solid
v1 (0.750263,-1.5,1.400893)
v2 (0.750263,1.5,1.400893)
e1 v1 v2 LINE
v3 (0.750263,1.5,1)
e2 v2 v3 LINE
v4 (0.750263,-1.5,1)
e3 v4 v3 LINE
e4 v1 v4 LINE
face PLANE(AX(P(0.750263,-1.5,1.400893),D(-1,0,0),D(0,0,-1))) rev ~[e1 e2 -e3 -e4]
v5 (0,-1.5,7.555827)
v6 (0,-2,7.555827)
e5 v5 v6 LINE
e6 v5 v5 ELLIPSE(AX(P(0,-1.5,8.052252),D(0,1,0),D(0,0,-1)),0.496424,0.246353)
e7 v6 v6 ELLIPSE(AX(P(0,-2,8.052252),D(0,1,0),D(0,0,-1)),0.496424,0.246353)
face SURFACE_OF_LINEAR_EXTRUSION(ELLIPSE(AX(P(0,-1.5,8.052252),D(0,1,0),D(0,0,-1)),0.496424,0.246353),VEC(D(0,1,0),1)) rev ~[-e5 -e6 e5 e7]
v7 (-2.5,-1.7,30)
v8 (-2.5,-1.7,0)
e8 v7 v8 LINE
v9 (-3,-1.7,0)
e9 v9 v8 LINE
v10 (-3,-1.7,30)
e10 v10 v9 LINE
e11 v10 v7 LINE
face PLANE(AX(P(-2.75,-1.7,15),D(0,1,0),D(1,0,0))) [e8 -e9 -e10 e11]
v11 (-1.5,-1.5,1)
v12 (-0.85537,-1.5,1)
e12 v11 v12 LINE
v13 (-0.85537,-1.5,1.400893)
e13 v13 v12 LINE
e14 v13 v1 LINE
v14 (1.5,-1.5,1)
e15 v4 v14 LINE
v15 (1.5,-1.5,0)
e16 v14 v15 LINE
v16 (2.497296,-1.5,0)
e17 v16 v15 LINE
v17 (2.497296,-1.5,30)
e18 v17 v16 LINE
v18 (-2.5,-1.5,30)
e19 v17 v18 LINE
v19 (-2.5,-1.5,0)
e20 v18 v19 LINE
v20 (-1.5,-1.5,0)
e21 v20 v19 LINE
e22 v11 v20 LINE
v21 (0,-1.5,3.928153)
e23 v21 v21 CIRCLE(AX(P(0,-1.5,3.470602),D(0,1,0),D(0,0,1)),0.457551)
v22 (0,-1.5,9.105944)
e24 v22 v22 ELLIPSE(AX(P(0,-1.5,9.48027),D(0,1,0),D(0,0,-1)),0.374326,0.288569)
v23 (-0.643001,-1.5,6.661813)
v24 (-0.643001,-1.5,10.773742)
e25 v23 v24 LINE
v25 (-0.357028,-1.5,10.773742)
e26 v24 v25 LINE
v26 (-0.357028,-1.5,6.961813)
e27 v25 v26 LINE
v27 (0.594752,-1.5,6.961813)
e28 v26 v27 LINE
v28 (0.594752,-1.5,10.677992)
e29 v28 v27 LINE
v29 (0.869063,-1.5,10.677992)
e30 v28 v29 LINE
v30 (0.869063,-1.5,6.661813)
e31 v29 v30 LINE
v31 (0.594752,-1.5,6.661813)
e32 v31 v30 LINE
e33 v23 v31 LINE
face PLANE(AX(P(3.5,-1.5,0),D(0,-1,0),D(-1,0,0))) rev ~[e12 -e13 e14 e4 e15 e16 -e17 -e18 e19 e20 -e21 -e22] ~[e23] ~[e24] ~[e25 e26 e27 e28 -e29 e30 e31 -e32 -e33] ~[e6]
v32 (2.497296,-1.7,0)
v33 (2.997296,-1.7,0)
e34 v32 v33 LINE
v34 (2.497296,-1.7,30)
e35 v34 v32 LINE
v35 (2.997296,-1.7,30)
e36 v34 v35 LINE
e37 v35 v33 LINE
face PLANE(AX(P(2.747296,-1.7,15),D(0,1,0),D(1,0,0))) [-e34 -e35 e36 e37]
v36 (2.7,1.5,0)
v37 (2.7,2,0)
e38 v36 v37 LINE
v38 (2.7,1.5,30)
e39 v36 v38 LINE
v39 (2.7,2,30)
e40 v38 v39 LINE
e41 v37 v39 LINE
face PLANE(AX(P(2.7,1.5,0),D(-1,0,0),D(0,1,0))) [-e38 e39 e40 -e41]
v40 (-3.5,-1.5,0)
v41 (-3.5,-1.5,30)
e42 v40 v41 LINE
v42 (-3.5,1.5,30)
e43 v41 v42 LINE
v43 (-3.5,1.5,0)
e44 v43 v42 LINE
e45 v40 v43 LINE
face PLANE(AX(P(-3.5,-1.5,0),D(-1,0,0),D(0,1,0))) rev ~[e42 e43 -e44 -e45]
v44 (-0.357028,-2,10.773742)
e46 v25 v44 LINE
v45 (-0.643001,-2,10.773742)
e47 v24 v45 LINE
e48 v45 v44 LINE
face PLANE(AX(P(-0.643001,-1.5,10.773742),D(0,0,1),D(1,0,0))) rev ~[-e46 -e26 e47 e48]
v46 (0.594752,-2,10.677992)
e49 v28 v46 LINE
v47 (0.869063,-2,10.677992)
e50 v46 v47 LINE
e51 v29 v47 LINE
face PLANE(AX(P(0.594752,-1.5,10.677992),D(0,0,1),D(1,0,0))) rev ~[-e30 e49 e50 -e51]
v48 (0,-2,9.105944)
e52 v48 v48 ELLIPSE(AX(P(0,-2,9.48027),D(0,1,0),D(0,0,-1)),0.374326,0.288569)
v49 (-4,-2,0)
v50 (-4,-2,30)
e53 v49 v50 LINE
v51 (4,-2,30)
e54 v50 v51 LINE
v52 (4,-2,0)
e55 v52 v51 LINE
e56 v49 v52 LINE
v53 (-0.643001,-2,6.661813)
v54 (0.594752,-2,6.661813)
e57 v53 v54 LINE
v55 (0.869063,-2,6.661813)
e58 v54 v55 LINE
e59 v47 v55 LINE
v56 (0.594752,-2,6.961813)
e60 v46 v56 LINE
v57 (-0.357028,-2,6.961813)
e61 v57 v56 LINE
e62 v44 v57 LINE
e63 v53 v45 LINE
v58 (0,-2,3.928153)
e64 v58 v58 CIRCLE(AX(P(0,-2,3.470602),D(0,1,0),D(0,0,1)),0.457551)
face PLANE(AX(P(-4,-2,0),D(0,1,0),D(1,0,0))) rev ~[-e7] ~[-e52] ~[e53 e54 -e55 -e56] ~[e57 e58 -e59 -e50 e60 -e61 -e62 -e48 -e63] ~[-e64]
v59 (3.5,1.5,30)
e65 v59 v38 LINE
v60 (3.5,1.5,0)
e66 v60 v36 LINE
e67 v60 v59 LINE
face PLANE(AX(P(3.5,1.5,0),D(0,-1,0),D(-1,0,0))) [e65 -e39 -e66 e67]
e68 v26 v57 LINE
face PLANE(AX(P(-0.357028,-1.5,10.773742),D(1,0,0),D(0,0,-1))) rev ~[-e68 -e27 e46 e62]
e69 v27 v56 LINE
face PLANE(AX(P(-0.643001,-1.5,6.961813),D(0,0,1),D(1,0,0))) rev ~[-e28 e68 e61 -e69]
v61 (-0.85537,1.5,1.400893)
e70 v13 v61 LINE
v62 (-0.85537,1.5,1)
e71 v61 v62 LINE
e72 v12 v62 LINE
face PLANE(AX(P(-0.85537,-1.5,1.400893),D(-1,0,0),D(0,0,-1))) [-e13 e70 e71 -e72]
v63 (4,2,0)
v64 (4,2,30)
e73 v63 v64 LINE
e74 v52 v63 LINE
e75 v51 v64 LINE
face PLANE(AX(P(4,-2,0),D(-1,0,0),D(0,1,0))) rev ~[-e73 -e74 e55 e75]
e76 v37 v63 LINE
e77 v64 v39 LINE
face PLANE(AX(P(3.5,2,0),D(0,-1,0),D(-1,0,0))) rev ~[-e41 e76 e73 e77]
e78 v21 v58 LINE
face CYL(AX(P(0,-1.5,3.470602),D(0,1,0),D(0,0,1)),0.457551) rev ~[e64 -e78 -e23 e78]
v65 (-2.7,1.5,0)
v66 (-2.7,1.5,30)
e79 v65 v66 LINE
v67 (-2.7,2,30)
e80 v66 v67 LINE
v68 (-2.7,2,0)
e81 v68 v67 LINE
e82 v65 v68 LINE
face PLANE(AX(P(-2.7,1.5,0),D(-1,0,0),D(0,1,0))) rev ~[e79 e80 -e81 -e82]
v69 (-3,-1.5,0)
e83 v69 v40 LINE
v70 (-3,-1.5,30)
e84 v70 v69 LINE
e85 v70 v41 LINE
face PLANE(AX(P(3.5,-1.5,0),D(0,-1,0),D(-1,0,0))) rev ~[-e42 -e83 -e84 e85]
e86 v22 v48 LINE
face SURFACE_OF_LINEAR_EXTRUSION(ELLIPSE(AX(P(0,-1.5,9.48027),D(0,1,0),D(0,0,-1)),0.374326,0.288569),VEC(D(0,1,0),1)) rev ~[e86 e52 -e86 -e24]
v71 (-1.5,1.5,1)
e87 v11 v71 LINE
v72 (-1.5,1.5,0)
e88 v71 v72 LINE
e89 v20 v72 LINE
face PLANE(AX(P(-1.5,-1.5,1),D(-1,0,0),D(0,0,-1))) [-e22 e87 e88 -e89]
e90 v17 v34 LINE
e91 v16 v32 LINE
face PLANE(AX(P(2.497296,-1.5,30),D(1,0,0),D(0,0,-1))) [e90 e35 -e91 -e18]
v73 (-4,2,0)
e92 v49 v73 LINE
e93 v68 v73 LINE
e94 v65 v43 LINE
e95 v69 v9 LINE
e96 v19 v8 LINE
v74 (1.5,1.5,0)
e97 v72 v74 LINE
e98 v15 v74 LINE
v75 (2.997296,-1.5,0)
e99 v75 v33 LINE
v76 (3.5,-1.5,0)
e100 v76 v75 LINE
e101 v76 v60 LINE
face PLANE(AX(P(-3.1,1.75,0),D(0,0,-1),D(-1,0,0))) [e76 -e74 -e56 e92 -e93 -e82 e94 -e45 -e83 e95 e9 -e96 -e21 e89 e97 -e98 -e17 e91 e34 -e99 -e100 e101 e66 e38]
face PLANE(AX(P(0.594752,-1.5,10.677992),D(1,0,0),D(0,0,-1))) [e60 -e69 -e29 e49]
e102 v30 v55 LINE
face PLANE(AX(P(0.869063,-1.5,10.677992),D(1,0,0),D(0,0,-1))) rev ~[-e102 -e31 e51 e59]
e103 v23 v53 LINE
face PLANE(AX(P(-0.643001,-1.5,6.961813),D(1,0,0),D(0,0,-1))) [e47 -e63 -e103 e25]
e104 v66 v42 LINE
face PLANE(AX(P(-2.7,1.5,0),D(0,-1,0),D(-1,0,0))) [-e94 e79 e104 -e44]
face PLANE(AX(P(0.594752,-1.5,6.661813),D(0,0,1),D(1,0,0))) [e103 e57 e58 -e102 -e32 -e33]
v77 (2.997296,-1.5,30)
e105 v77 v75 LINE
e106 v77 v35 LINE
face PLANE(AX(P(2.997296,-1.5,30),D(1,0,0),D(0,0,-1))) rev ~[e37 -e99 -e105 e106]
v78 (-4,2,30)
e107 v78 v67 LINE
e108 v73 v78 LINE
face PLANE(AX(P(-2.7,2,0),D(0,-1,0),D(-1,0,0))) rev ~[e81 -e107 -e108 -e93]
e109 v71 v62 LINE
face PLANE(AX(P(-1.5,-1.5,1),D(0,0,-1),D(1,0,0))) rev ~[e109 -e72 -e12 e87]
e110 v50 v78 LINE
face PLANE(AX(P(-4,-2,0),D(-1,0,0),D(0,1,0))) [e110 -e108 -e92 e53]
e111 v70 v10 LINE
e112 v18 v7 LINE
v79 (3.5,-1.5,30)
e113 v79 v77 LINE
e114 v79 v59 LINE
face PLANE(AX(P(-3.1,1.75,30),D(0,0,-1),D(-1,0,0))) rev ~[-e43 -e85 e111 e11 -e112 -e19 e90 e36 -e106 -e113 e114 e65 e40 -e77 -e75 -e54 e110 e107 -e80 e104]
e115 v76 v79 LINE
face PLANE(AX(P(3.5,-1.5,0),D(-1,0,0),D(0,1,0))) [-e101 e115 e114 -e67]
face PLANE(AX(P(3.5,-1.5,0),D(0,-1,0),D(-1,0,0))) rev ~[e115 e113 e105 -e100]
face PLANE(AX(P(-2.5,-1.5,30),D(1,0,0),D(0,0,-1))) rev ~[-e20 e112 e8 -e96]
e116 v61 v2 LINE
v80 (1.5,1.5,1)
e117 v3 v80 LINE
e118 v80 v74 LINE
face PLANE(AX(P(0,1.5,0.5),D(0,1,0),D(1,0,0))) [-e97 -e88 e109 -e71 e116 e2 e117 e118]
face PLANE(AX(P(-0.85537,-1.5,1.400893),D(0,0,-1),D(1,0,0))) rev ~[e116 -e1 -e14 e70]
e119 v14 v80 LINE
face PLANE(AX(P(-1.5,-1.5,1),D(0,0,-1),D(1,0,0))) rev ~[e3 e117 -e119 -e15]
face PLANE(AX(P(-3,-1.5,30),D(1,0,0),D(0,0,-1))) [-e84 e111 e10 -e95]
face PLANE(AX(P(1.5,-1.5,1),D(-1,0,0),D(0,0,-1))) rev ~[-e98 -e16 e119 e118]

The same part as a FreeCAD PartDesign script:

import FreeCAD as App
import Part
import Sketcher
from FreeCAD import Vector
Q = App.Units.Quantity


def add_polygon(sketch, points):
    """Adds a closed chain of lines whose ends are joined by coincident constraints."""
    first, n = sketch.GeometryCount, len(points)
    for a, b in zip(points, points[1:] + points[:1]):
        sketch.addGeometry(Part.LineSegment(App.Vector(*a, 0), App.Vector(*b, 0)), False)
    for i in range(n):
        sketch.addConstraint(Sketcher.Constraint("Coincident", first + i, 2, first + (i + 1) % n, 1))

doc = App.newDocument("Part")
params = doc.addObject("Spreadsheet::Sheet", "Params")
for row, (alias, value) in enumerate([
    ("sketch1_width", "8 mm"),
    ("sketch1_height", "4 mm"),
    ("pad1_length", "30 mm"),
    ("sketch2_width", "7 mm"),
    ("sketch2_height", "3.5 mm"),
    ("pocket1_length", "30 mm"),
    ("sketch3_width", "3 mm"),
    ("sketch3_height", "1 mm"),
    ("pad2_length", "3 mm"),
    ("pad3_length", "3 mm"),
    ("sketch5_height", "30 mm"),
    ("sketch5_width", "0.5 mm"),
    ("pocket2_length", "0.2 mm"),
    ("sketch6_height", "30 mm"),
    ("sketch6_width", "0.5 mm"),
    ("pocket3_length", "0.2 mm"),
    ("pocket4_length", "0.5 mm"),
    ("pocket5_length", "0.5 mm"),
    ("pocket6_length", "0.5 mm"),
    ("pocket7_length", "0.5 mm"),
    ("sketch11_height", "0.3 mm"),
    ("pocket8_length", "0.5 mm"),
    ("pocket9_length", "0.5 mm"),
    ("sketch13_width", "0.8 mm"),
    ("sketch13_height", "0.5 mm"),
    ("pad4_length", "30 mm"),
    ("sketch14_width", "0.8 mm"),
    ("sketch14_height", "0.5 mm"),
    ("pad5_length", "30 mm"),
], start=1):
    params.set(f"A{row}", alias)
    params.set(f"B{row}", "=" + value)
    params.setAlias(f"B{row}", alias)

body = doc.addObject("PartDesign::Body", "Body")

# Sketch on XY plane
sketch1 = body.newObject("Sketcher::SketchObject", "Sketch")
sketch1.AttachmentSupport = (doc.getObject("XY_Plane"), [""])
sketch1.MapMode = "FlatFace"
add_polygon(sketch1, [(-4, 2), (-4, -2), (4, -2), (4, 2)])  # lines 0-3
sketch1.addConstraint([
    Sketcher.Constraint("Vertical", 0),
    Sketcher.Constraint("Horizontal", 1),
    Sketcher.Constraint("Vertical", 2),
    Sketcher.Constraint("Horizontal", 3),
    Sketcher.Constraint("Symmetric", 0, 2, 2, 2, -1, 1),
    Sketcher.Constraint("DistanceX", 1, 1, 1, 2, Q("8 mm")),
    Sketcher.Constraint("DistanceY", 0, 2, 0, 1, Q("4 mm")),
])
sketch1.setExpression("Constraints[9]", "Params.sketch1_width")
sketch1.setExpression("Constraints[10]", "Params.sketch1_height")
pad1 = body.newObject("PartDesign::Pad", "Pad")
pad1.Profile = sketch1
pad1.setExpression("Length", "Params.pad1_length")

# Sketch on XY plane
sketch2 = body.newObject("Sketcher::SketchObject", "Sketch001")
sketch2.AttachmentSupport = (doc.getObject("XY_Plane"), [""])
sketch2.MapMode = "FlatFace"
add_polygon(sketch2, [(3.5, 2), (3.5, -1.5), (-3.5, -1.5), (-3.5, 2)])  # lines 0-3
sketch2.addConstraint([
    Sketcher.Constraint("Vertical", 0),
    Sketcher.Constraint("Horizontal", 1),
    Sketcher.Constraint("Vertical", 2),
    Sketcher.Constraint("Horizontal", 3),
    Sketcher.Constraint("DistanceX", 1, 2, 1, 1, Q("7 mm")),
    Sketcher.Constraint("DistanceY", 0, 2, 0, 1, Q("3.5 mm")),
    Sketcher.Constraint("DistanceY", -1, 1, 2, 2, Q("2 mm")),
    Sketcher.Constraint("DistanceX", -1, 1, 0, 2, Q("3.5 mm")),
])
sketch2.setExpression("Constraints[8]", "Params.sketch2_width")
sketch2.setExpression("Constraints[9]", "Params.sketch2_height")
pocket1 = body.newObject("PartDesign::Pocket", "Pocket")
pocket1.Profile = sketch2
pocket1.setExpression("Length", "Params.pocket1_length")
pocket1.Reversed = True

# Sketch on XZ plane
sketch3 = body.newObject("Sketcher::SketchObject", "Sketch002")
sketch3.AttachmentSupport = (doc.getObject("XZ_Plane"), [""])
sketch3.MapMode = "FlatFace"
sketch3.AttachmentOffset = App.Placement(Vector(0, 0, 1.5), App.Rotation())
add_polygon(sketch3, [(-1.5, 0), (-1.5, 1), (1.5, 1), (1.5, 0)])  # lines 0-3
sketch3.addConstraint([
    Sketcher.Constraint("Vertical", 0),
    Sketcher.Constraint("Horizontal", 1),
    Sketcher.Constraint("Vertical", 2),
    Sketcher.Constraint("Horizontal", 3),
    Sketcher.Constraint("Symmetric", 2, 2, 3, 2, -1, 1),
    Sketcher.Constraint("DistanceX", 1, 1, 1, 2, Q("3 mm")),
    Sketcher.Constraint("DistanceY", 0, 1, 0, 2, Q("1 mm")),
])
sketch3.setExpression("Constraints[9]", "Params.sketch3_width")
sketch3.setExpression("Constraints[10]", "Params.sketch3_height")
pad2 = body.newObject("PartDesign::Pad", "Pad001")
pad2.Profile = sketch3
pad2.setExpression("Length", "Params.pad2_length")
pad2.Reversed = True

# Sketch on XZ plane
sketch4 = body.newObject("Sketcher::SketchObject", "Sketch003")
sketch4.AttachmentSupport = (doc.getObject("XZ_Plane"), [""])
sketch4.MapMode = "FlatFace"
sketch4.AttachmentOffset = App.Placement(Vector(0, 0, 1.5), App.Rotation())
add_polygon(sketch4, [(-0.85537, 1), (-0.85537, 1.400893), (0.750263, 1.400893), (0.750263, 1)])  # lines 0-3
sketch4.addConstraint([
    Sketcher.Constraint("Vertical", 0),
    Sketcher.Constraint("Horizontal", 1),
    Sketcher.Constraint("Vertical", 2),
    Sketcher.Constraint("Horizontal", 3),
    Sketcher.Constraint("DistanceY", -1, 1, 2, 2, Q("1 mm")),
    Sketcher.Constraint("DistanceX", 1, 1, 1, 2, Q("1.605633 mm")),
    Sketcher.Constraint("DistanceY", 0, 1, 0, 2, Q("0.400893 mm")),
    Sketcher.Constraint("DistanceX", 0, 2, -1, 1, Q("0.85537 mm")),
])
pad3 = body.newObject("PartDesign::Pad", "Pad002")
pad3.Profile = sketch4
pad3.setExpression("Length", "Params.pad3_length")
pad3.Reversed = True

# Sketch on XZ plane
sketch5 = body.newObject("Sketcher::SketchObject", "Sketch004")
sketch5.AttachmentSupport = (doc.getObject("XZ_Plane"), [""])
sketch5.MapMode = "FlatFace"
sketch5.AttachmentOffset = App.Placement(Vector(0, 0, 1.5), App.Rotation())
add_polygon(sketch5, [(-3, 0), (-3, 30), (-2.5, 30), (-2.5, 0)])  # lines 0-3
sketch5.addConstraint([
    Sketcher.Constraint("Vertical", 0),
    Sketcher.Constraint("Horizontal", 1),
    Sketcher.Constraint("Vertical", 2),
    Sketcher.Constraint("Horizontal", 3),
    Sketcher.Constraint("PointOnObject", 2, 2, -1),
    Sketcher.Constraint("DistanceY", 0, 1, 0, 2, Q("30 mm")),
    Sketcher.Constraint("DistanceX", 1, 1, 1, 2, Q("0.5 mm")),
    Sketcher.Constraint("DistanceX", 0, 2, -1, 1, Q("3 mm")),
])
sketch5.setExpression("Constraints[9]", "Params.sketch5_height")
sketch5.setExpression("Constraints[10]", "Params.sketch5_width")
pocket2 = body.newObject("PartDesign::Pocket", "Pocket001")
pocket2.Profile = sketch5
pocket2.setExpression("Length", "Params.pocket2_length")
pocket2.Reversed = True

# Sketch on XZ plane
sketch6 = body.newObject("Sketcher::SketchObject", "Sketch005")
sketch6.AttachmentSupport = (doc.getObject("XZ_Plane"), [""])
sketch6.MapMode = "FlatFace"
sketch6.AttachmentOffset = App.Placement(Vector(0, 0, 1.5), App.Rotation())
add_polygon(sketch6, [(2.497296, 0), (2.497296, 30), (2.997296, 30), (2.997296, 0)])  # lines 0-3
sketch6.addConstraint([
    Sketcher.Constraint("Vertical", 0),
    Sketcher.Constraint("Horizontal", 1),
    Sketcher.Constraint("Vertical", 2),
    Sketcher.Constraint("Horizontal", 3),
    Sketcher.Constraint("PointOnObject", 2, 2, -1),
    Sketcher.Constraint("DistanceY", 0, 1, 0, 2, Q("30 mm")),
    Sketcher.Constraint("DistanceX", 1, 1, 1, 2, Q("0.5 mm")),
    Sketcher.Constraint("DistanceX", -1, 1, 0, 2, Q("2.497296 mm")),
])
sketch6.setExpression("Constraints[9]", "Params.sketch6_height")
sketch6.setExpression("Constraints[10]", "Params.sketch6_width")
pocket3 = body.newObject("PartDesign::Pocket", "Pocket002")
pocket3.Profile = sketch6
pocket3.setExpression("Length", "Params.pocket3_length")
pocket3.Reversed = True

# Sketch on XZ plane
sketch7 = body.newObject("Sketcher::SketchObject", "Sketch006")
sketch7.AttachmentSupport = (doc.getObject("XZ_Plane"), [""])
sketch7.MapMode = "FlatFace"
sketch7.AttachmentOffset = App.Placement(Vector(0, 0, 1.5), App.Rotation())
sketch7.addGeometry(Part.Circle(Vector(0, 3.470602, 0), Vector(0, 0, 1), 0.457551), False)
sketch7.addConstraint([
    Sketcher.Constraint("PointOnObject", 0, 3, -2),
    Sketcher.Constraint("Diameter", 0, Q("0.915102 mm")),
    Sketcher.Constraint("DistanceY", -1, 1, 0, 3, Q("3.470602 mm")),
])
pocket4 = body.newObject("PartDesign::Pocket", "Pocket003")
pocket4.Profile = sketch7
pocket4.setExpression("Length", "Params.pocket4_length")
pocket4.Reversed = True

# Sketch on XZ plane
sketch8 = body.newObject("Sketcher::SketchObject", "Sketch007")
sketch8.AttachmentSupport = (doc.getObject("XZ_Plane"), [""])
sketch8.MapMode = "FlatFace"
sketch8.AttachmentOffset = App.Placement(Vector(0, 0, 1.5), App.Rotation())
sketch8.addGeometry(Part.Ellipse(Vector(0, 7.555827, 0), Vector(0.246353, 8.052252, 0), Vector(0, 8.052252, 0)), False)
sketch8.addConstraint(Sketcher.Constraint("Block", 0))
pocket5 = body.newObject("PartDesign::Pocket", "Pocket004")
pocket5.Profile = sketch8
pocket5.setExpression("Length", "Params.pocket5_length")
pocket5.Reversed = True

# Sketch on XZ plane
sketch9 = body.newObject("Sketcher::SketchObject", "Sketch008")
sketch9.AttachmentSupport = (doc.getObject("XZ_Plane"), [""])
sketch9.MapMode = "FlatFace"
sketch9.AttachmentOffset = App.Placement(Vector(0, 0, 1.5), App.Rotation())
sketch9.addGeometry(Part.Ellipse(Vector(0, 9.105944, 0), Vector(0.288569, 9.48027, 0), Vector(0, 9.48027, 0)), False)
sketch9.addConstraint(Sketcher.Constraint("Block", 0))
pocket6 = body.newObject("PartDesign::Pocket", "Pocket005")
pocket6.Profile = sketch9
pocket6.setExpression("Length", "Params.pocket6_length")
pocket6.Reversed = True

# Sketch on XZ plane
sketch10 = body.newObject("Sketcher::SketchObject", "Sketch009")
sketch10.AttachmentSupport = (doc.getObject("XZ_Plane"), [""])
sketch10.MapMode = "FlatFace"
sketch10.AttachmentOffset = App.Placement(Vector(0, 0, 1.5), App.Rotation())
add_polygon(sketch10, [(0.594752, 6.661813), (0.594752, 10.677992), (0.869063, 10.677992), (0.869063, 6.661813)])  # lines 0-3
sketch10.addConstraint([
    Sketcher.Constraint("Vertical", 0),
    Sketcher.Constraint("Horizontal", 1),
    Sketcher.Constraint("Vertical", 2),
    Sketcher.Constraint("Horizontal", 3),
    Sketcher.Constraint("DistanceX", 1, 1, 1, 2, Q("0.274311 mm")),
    Sketcher.Constraint("DistanceY", 0, 1, 0, 2, Q("4.016179 mm")),
    Sketcher.Constraint("DistanceY", -1, 1, 0, 2, Q("10.677992 mm")),
    Sketcher.Constraint("DistanceX", -1, 1, 0, 2, Q("0.594752 mm")),
])
pocket7 = body.newObject("PartDesign::Pocket", "Pocket006")
pocket7.Profile = sketch10
pocket7.setExpression("Length", "Params.pocket7_length")
pocket7.Reversed = True

# Sketch on XZ plane
sketch11 = body.newObject("Sketcher::SketchObject", "Sketch010")
sketch11.AttachmentSupport = (doc.getObject("XZ_Plane"), [""])
sketch11.MapMode = "FlatFace"
sketch11.AttachmentOffset = App.Placement(Vector(0, 0, 1.5), App.Rotation())
add_polygon(sketch11, [(-0.643001, 6.661813), (-0.643001, 6.961813), (0.594752, 6.961813), (0.594752, 6.661813)])  # lines 0-3
sketch11.addConstraint([
    Sketcher.Constraint("Vertical", 0),
    Sketcher.Constraint("Horizontal", 1),
    Sketcher.Constraint("Vertical", 2),
    Sketcher.Constraint("Horizontal", 3),
    Sketcher.Constraint("DistanceY", 0, 1, 0, 2, Q("0.3 mm")),
    Sketcher.Constraint("DistanceX", 0, 2, -1, 1, Q("0.643001 mm")),
    Sketcher.Constraint("DistanceX", 1, 1, 1, 2, Q("1.237753 mm")),
    Sketcher.Constraint("DistanceY", -1, 1, 0, 2, Q("6.961813 mm")),
])
sketch11.setExpression("Constraints[8]", "Params.sketch11_height")
pocket8 = body.newObject("PartDesign::Pocket", "Pocket007")
pocket8.Profile = sketch11
pocket8.setExpression("Length", "Params.pocket8_length")
pocket8.Reversed = True

# Sketch on XZ plane
sketch12 = body.newObject("Sketcher::SketchObject", "Sketch011")
sketch12.AttachmentSupport = (doc.getObject("XZ_Plane"), [""])
sketch12.MapMode = "FlatFace"
sketch12.AttachmentOffset = App.Placement(Vector(0, 0, 1.5), App.Rotation())
add_polygon(sketch12, [(-0.643001, 6.961813), (-0.643001, 10.773742), (-0.357028, 10.773742), (-0.357028, 6.961813)])  # lines 0-3
sketch12.addConstraint([
    Sketcher.Constraint("Vertical", 0),
    Sketcher.Constraint("Horizontal", 1),
    Sketcher.Constraint("Vertical", 2),
    Sketcher.Constraint("Horizontal", 3),
    Sketcher.Constraint("DistanceX", 0, 2, -1, 1, Q("0.643001 mm")),
    Sketcher.Constraint("DistanceY", 0, 1, 0, 2, Q("3.811929 mm")),
    Sketcher.Constraint("DistanceX", 1, 1, 1, 2, Q("0.285973 mm")),
    Sketcher.Constraint("DistanceY", -1, 1, 0, 2, Q("10.773742 mm")),
])
pocket9 = body.newObject("PartDesign::Pocket", "Pocket008")
pocket9.Profile = sketch12
pocket9.setExpression("Length", "Params.pocket9_length")
pocket9.Reversed = True

# Sketch on XY plane
sketch13 = body.newObject("Sketcher::SketchObject", "Sketch012")
sketch13.AttachmentSupport = (doc.getObject("XY_Plane"), [""])
sketch13.MapMode = "FlatFace"
add_polygon(sketch13, [(3.5, 2), (3.5, 1.5), (2.7, 1.5), (2.7, 2)])  # lines 0-3
sketch13.addConstraint([
    Sketcher.Constraint("Vertical", 0),
    Sketcher.Constraint("Horizontal", 1),
    Sketcher.Constraint("Vertical", 2),
    Sketcher.Constraint("Horizontal", 3),
    Sketcher.Constraint("DistanceX", 1, 2, 1, 1, Q("0.8 mm")),
    Sketcher.Constraint("DistanceY", 0, 2, 0, 1, Q("0.5 mm")),
    Sketcher.Constraint("DistanceY", -1, 1, 2, 2, Q("2 mm")),
    Sketcher.Constraint("DistanceX", -1, 1, 0, 2, Q("3.5 mm")),
])
sketch13.setExpression("Constraints[8]", "Params.sketch13_width")
sketch13.setExpression("Constraints[9]", "Params.sketch13_height")
pad4 = body.newObject("PartDesign::Pad", "Pad003")
pad4.Profile = sketch13
pad4.setExpression("Length", "Params.pad4_length")

# Sketch on XY plane
sketch14 = body.newObject("Sketcher::SketchObject", "Sketch013")
sketch14.AttachmentSupport = (doc.getObject("XY_Plane"), [""])
sketch14.MapMode = "FlatFace"
add_polygon(sketch14, [(-2.7, 2), (-2.7, 1.5), (-3.5, 1.5), (-3.5, 2)])  # lines 0-3
sketch14.addConstraint([
    Sketcher.Constraint("Vertical", 0),
    Sketcher.Constraint("Horizontal", 1),
    Sketcher.Constraint("Vertical", 2),
    Sketcher.Constraint("Horizontal", 3),
    Sketcher.Constraint("DistanceX", 1, 2, 1, 1, Q("0.8 mm")),
    Sketcher.Constraint("DistanceY", 0, 2, 0, 1, Q("0.5 mm")),
    Sketcher.Constraint("DistanceY", -1, 1, 2, 2, Q("2 mm")),
    Sketcher.Constraint("DistanceX", 0, 2, -1, 1, Q("2.7 mm")),
])
sketch14.setExpression("Constraints[8]", "Params.sketch14_width")
sketch14.setExpression("Constraints[9]", "Params.sketch14_height")
pad5 = body.newObject("PartDesign::Pad", "Pad004")
pad5.Profile = sketch14
pad5.setExpression("Length", "Params.pad5_length")

doc.recompute()
